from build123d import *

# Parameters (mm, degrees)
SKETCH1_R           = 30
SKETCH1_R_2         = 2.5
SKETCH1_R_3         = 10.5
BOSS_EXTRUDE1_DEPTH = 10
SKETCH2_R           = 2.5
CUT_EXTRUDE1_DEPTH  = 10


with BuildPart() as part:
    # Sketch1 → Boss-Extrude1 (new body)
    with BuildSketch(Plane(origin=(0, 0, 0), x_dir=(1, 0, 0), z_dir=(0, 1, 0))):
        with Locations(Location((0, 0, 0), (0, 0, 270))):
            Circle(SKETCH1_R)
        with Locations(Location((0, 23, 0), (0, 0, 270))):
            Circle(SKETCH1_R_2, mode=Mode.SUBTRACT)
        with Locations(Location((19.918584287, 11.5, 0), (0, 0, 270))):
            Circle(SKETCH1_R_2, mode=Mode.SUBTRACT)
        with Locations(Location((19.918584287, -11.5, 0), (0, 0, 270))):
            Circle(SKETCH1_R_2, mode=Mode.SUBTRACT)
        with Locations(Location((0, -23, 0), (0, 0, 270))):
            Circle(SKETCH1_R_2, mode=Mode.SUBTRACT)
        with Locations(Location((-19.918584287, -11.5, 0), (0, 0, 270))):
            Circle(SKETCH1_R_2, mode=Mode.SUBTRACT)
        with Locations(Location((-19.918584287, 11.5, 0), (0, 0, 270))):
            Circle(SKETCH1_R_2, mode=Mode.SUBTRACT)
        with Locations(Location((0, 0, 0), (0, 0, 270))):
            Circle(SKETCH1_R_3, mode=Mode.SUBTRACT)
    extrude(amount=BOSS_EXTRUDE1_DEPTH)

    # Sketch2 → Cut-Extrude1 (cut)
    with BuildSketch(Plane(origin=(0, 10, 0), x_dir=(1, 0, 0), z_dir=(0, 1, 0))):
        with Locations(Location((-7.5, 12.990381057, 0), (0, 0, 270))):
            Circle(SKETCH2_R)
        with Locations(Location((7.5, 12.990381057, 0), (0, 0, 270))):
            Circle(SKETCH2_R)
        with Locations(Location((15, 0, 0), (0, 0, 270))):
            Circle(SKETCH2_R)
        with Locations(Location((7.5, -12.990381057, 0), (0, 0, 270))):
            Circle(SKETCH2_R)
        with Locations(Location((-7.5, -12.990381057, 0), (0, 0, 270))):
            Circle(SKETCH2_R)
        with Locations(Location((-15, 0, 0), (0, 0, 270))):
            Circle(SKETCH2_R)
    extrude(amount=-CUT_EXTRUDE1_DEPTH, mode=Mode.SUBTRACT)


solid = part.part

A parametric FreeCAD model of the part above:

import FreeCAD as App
import Part
import Sketcher
from FreeCAD import Vector

doc = App.newDocument("Part")
body = doc.addObject("PartDesign::Body", "Body")

# Sketch on XZ plane
sketch1 = doc.addObject("Sketcher::SketchObject", "Sketch")
body.addObject(sketch1)
sketch1.AttachmentSupport = (doc.XZ_Plane, [""])
sketch1.MapMode = "FlatFace"
sketch1.addGeometry([
    Part.Circle(Vector(0, 0, 0), Vector(0, 0, 1), 30),  # 0
    Part.Circle(Vector(-19.918584, -11.5, 0), Vector(0, 0, 1), 2.5),  # 1
    Part.Circle(Vector(0, -23, 0), Vector(0, 0, 1), 2.5),  # 2
    Part.Circle(Vector(-19.918584, 11.5, 0), Vector(0, 0, 1), 2.5),  # 3
    Part.Circle(Vector(19.918584, -11.5, 0), Vector(0, 0, 1), 2.5),  # 4
    Part.Circle(Vector(0, 0, 0), Vector(0, 0, 1), 10.5),  # 5
    Part.Circle(Vector(0, 23, 0), Vector(0, 0, 1), 2.5),  # 6
    Part.Circle(Vector(19.918584, 11.5, 0), Vector(0, 0, 1), 2.5),  # 7
], False)
sketch1.addConstraint([
    Sketcher.Constraint("Coincident", 0, 3, -1, 1),
    Sketcher.Constraint("Coincident", 5, 3, -1, 1),
    Sketcher.Constraint("Equal", 1, 2),
    Sketcher.Constraint("Equal", 2, 3),
    Sketcher.Constraint("Equal", 3, 4),
    Sketcher.Constraint("Equal", 4, 6),
    Sketcher.Constraint("Equal", 6, 7),
    Sketcher.Constraint("Symmetric", 3, 3, 4, 3, -1, 1),
    Sketcher.Constraint("Symmetric", 2, 3, 6, 3, -1, 1),
    Sketcher.Constraint("Symmetric", 1, 3, 7, 3, -1, 1),
    Sketcher.Constraint("Symmetric", 1, 3, 4, 3, -2),
    Sketcher.Constraint("PointOnObject", 2, 3, -2),
    Sketcher.Constraint("Diameter", 0, 60.0),
    Sketcher.Constraint("Diameter", 1, 5.0),
    Sketcher.Constraint("Diameter", 5, 21.0),
    Sketcher.Constraint("DistanceY", 2, 3, -1, 1, 23.0),
    Sketcher.Constraint("DistanceY", 1, 3, 3, 3, 23.0),
    Sketcher.Constraint("DistanceX", 1, 3, 4, 3, 39.837169),
])
pad1 = doc.addObject("PartDesign::Pad", "Pad")
body.addObject(pad1)
pad1.Profile = sketch1
pad1.Length = 10
pad1.Reversed = True

# Sketch on XZ plane
sketch2 = doc.addObject("Sketcher::SketchObject", "Sketch001")
body.addObject(sketch2)
sketch2.AttachmentSupport = (doc.XZ_Plane, [""])
sketch2.MapMode = "FlatFace"
sketch2.AttachmentOffset = App.Placement(Vector(0, 0, -10), App.Rotation())
sketch2.addGeometry([
    Part.Circle(Vector(-7.5, -12.990381, 0), Vector(0, 0, 1), 2.5),  # 0
    Part.Circle(Vector(7.5, -12.990381, 0), Vector(0, 0, 1), 2.5),  # 1
    Part.Circle(Vector(15, 0, 0), Vector(0, 0, 1), 2.5),  # 2
    Part.Circle(Vector(7.5, 12.990381, 0), Vector(0, 0, 1), 2.5),  # 3
    Part.Circle(Vector(-7.5, 12.990381, 0), Vector(0, 0, 1), 2.5),  # 4
    Part.Circle(Vector(-15, 0, 0), Vector(0, 0, 1), 2.5),  # 5
], False)
sketch2.addConstraint([
    Sketcher.Constraint("Equal", 0, 1),
    Sketcher.Constraint("Equal", 1, 2),
    Sketcher.Constraint("Equal", 2, 3),
    Sketcher.Constraint("Equal", 3, 4),
    Sketcher.Constraint("Equal", 4, 5),
    Sketcher.Constraint("Symmetric", 0, 3, 3, 3, -1, 1),
    Sketcher.Constraint("Symmetric", 1, 3, 4, 3, -1, 1),
    Sketcher.Constraint("Symmetric", 2, 3, 5, 3, -1, 1),
    Sketcher.Constraint("Symmetric", 0, 3, 1, 3, -2),
    Sketcher.Constraint("PointOnObject", 2, 3, -1),
    Sketcher.Constraint("Diameter", 0, 5.0),
    Sketcher.Constraint("DistanceX", -1, 1, 2, 3, 15.0),
    Sketcher.Constraint("DistanceX", 0, 3, 1, 3, 15.0),
    Sketcher.Constraint("DistanceY", 0, 3, -1, 1, 12.990381),
])
pocket1 = doc.addObject("PartDesign::Pocket", "Pocket")
body.addObject(pocket1)
pocket1.Profile = sketch2
pocket1.Length = 10
pocket1.Reversed = True

doc.recompute()
